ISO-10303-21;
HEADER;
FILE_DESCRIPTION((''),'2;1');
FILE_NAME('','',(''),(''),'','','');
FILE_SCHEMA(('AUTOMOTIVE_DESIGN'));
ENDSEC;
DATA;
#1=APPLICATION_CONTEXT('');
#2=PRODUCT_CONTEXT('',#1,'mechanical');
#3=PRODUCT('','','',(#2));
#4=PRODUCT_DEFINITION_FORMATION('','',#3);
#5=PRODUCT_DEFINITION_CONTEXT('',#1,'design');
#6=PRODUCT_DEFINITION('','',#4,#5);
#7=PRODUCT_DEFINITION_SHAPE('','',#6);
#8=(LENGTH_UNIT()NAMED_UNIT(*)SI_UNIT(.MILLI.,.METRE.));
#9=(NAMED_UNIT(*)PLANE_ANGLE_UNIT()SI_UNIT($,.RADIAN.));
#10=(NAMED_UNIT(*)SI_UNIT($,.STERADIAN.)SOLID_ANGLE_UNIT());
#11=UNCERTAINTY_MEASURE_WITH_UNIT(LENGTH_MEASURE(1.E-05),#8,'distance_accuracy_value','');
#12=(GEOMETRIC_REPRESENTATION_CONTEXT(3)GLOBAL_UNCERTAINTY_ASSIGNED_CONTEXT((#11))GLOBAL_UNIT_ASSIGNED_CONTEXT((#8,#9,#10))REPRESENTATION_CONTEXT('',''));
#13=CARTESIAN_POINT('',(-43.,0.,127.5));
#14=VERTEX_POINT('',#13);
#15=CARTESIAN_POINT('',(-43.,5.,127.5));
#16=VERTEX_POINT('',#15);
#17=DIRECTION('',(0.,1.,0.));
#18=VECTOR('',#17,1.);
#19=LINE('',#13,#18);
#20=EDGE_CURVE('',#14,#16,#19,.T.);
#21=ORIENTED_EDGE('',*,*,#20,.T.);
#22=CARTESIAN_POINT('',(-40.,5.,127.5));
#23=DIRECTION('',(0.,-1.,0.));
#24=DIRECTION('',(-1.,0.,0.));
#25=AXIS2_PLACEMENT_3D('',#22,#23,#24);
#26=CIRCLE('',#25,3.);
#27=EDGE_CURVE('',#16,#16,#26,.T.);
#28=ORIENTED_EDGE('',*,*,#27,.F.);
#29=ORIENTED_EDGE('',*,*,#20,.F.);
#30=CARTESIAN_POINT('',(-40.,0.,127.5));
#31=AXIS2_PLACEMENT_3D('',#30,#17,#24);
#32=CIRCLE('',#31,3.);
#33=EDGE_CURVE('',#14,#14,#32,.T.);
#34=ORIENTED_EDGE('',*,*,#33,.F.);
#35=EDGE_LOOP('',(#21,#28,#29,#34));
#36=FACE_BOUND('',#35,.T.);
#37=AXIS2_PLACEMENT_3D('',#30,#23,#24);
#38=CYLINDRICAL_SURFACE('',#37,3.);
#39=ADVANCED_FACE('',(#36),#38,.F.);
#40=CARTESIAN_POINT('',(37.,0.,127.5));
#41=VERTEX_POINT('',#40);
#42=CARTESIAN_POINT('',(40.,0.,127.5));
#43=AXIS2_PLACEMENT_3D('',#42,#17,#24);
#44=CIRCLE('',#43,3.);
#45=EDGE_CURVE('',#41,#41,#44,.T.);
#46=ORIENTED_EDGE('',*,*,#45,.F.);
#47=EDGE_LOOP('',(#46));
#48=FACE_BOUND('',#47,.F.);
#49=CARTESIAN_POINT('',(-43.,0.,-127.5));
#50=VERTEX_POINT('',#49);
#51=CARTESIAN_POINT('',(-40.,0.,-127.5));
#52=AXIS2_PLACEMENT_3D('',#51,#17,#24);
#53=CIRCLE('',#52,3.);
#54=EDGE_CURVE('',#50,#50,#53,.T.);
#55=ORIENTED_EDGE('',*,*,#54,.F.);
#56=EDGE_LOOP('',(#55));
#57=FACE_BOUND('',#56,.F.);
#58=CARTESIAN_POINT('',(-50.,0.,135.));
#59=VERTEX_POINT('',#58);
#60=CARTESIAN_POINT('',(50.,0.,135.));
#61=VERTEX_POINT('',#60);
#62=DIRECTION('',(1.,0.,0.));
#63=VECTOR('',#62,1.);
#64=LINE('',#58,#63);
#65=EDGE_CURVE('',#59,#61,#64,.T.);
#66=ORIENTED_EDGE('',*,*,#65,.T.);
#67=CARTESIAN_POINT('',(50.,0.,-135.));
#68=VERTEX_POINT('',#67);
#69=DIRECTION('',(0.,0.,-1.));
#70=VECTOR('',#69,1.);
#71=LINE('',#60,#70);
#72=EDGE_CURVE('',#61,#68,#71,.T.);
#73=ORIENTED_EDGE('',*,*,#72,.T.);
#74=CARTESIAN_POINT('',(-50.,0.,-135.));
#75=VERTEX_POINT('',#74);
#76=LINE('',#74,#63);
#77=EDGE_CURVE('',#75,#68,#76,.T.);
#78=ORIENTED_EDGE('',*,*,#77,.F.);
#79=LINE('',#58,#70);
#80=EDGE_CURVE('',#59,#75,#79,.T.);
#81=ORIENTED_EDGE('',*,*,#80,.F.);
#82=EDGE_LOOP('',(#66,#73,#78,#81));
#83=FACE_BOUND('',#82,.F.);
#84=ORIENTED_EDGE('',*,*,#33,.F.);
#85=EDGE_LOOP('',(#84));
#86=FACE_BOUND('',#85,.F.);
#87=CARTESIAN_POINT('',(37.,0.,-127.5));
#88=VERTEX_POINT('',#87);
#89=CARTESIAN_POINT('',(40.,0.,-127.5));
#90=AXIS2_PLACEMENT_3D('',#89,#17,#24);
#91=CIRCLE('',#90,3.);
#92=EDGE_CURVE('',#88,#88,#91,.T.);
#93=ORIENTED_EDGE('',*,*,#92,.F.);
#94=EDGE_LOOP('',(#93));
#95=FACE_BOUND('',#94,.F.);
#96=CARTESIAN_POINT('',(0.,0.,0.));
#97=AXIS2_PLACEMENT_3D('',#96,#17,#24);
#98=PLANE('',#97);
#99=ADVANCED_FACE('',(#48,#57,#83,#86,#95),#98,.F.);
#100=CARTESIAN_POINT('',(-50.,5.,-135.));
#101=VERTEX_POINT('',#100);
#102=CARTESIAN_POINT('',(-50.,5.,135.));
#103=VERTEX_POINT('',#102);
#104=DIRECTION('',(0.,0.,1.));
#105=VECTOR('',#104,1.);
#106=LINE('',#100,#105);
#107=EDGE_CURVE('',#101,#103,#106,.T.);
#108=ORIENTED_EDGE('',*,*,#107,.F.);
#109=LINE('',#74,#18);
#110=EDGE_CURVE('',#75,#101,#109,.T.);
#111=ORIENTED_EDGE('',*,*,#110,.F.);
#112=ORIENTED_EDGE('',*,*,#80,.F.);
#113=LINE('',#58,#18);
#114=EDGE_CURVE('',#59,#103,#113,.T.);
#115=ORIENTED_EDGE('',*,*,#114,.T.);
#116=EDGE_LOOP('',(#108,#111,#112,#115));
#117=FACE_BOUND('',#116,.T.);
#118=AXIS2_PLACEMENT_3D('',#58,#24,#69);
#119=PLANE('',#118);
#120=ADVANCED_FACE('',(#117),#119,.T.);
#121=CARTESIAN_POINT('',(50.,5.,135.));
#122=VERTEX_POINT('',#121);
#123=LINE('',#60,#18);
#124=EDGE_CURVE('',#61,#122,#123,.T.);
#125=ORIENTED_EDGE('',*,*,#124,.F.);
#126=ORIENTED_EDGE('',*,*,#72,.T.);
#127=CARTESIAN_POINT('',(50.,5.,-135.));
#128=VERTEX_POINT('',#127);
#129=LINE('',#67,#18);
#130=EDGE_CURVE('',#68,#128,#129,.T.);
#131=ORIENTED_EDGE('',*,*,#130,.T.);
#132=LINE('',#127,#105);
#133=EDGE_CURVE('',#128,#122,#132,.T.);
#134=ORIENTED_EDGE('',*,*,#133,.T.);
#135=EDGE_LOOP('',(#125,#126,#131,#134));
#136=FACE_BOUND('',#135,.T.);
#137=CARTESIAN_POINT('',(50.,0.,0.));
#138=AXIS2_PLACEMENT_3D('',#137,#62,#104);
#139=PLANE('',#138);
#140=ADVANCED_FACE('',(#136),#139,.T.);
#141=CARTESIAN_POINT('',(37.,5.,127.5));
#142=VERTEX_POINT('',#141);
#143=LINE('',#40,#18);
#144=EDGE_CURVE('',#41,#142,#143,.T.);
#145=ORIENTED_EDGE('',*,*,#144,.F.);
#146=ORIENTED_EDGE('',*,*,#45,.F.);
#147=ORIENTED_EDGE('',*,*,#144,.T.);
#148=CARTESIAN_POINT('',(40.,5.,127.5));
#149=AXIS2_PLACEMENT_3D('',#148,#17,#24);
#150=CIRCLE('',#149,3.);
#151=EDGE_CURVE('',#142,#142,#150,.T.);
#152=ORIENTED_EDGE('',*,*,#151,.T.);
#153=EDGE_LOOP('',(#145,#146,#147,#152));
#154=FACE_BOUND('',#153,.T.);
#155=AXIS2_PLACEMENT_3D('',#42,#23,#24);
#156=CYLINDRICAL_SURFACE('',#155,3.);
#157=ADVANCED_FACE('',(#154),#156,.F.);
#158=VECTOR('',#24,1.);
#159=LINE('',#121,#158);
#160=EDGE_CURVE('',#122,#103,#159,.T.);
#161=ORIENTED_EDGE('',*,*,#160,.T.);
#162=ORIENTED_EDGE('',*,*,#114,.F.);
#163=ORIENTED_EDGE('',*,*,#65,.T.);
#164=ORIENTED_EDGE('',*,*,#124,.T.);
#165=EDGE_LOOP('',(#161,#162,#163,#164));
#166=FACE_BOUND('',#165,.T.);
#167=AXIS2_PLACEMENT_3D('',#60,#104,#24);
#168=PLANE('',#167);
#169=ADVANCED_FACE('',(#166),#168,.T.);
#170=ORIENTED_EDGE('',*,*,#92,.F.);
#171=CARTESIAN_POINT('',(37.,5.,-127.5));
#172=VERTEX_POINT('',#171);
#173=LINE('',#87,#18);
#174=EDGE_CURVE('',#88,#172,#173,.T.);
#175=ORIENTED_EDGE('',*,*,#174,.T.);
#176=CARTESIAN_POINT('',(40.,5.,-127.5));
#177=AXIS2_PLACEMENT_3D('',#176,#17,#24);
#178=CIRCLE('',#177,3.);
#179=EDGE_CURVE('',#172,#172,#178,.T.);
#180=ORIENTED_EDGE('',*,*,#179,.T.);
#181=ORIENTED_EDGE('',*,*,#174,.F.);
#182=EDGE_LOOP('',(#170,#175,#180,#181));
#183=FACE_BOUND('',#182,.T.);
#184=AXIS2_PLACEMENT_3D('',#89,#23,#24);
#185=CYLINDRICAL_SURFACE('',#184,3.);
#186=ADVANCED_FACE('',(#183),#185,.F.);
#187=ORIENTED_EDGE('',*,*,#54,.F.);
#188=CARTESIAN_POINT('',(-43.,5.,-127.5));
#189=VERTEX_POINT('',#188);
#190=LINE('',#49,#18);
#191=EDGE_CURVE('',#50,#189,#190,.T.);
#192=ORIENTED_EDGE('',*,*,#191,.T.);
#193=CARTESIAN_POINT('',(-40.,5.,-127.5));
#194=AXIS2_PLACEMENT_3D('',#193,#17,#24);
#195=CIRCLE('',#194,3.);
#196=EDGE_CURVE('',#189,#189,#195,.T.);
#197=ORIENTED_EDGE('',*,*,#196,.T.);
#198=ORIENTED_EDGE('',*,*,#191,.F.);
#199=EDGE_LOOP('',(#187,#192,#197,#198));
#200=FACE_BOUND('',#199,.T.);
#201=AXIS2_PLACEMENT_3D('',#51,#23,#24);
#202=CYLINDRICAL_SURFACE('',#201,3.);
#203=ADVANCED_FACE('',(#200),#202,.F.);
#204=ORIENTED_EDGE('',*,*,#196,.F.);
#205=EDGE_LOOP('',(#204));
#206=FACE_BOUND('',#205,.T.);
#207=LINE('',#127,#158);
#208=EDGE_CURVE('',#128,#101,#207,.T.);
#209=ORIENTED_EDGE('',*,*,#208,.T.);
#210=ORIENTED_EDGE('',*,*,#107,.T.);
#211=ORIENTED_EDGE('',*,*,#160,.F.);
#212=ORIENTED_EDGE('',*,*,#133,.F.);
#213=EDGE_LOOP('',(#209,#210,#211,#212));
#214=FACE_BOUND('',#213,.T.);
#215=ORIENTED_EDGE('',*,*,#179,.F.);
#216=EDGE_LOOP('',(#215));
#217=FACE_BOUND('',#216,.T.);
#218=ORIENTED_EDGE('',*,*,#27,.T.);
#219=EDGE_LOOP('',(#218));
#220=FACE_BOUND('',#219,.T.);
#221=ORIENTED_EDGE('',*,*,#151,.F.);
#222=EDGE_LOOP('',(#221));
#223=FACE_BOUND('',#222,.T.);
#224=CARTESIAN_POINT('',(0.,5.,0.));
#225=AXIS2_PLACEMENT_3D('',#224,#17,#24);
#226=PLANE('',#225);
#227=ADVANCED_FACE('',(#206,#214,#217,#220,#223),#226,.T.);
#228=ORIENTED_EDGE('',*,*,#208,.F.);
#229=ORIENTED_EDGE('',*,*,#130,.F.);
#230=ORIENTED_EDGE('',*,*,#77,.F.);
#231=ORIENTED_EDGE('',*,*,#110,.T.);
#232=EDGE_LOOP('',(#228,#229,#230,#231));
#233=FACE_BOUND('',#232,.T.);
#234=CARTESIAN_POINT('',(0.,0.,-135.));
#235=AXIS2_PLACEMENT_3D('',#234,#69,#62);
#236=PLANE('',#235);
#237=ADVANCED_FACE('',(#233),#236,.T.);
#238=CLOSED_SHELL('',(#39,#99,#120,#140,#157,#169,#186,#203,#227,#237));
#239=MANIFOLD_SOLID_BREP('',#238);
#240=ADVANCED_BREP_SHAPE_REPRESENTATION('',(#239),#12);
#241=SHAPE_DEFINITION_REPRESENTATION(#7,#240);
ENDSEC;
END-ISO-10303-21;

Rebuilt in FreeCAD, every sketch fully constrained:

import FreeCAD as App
import Part
import Sketcher
from FreeCAD import Vector
Q = App.Units.Quantity

doc = App.newDocument("Part")
body = doc.addObject("PartDesign::Body", "Body")

# Sketch on XZ plane
sketch1 = doc.addObject("Sketcher::SketchObject", "Sketch")
body.addObject(sketch1)
sketch1.AttachmentSupport = (doc.XZ_Plane, [""])
sketch1.MapMode = "FlatFace"
sketch1.addGeometry([
    Part.LineSegment(Vector(50, 135, 0), Vector(50, -135, 0)),  # 0
    Part.LineSegment(Vector(50, -135, 0), Vector(-50, -135, 0)),  # 1
    Part.LineSegment(Vector(-50, -135, 0), Vector(-50, 135, 0)),  # 2
    Part.LineSegment(Vector(-50, 135, 0), Vector(50, 135, 0)),  # 3
    Part.Circle(Vector(40, 127.5, 0), Vector(0, 0, 1), 3),  # 4
    Part.Circle(Vector(40, -127.5, 0), Vector(0, 0, 1), 3),  # 5
    Part.Circle(Vector(-40, 127.5, 0), Vector(0, 0, 1), 3),  # 6
    Part.Circle(Vector(-40, -127.5, 0), Vector(0, 0, 1), 3),  # 7
], False)
sketch1.addConstraint([
    Sketcher.Constraint("Coincident", 0, 2, 1, 1),
    Sketcher.Constraint("Coincident", 1, 2, 2, 1),
    Sketcher.Constraint("Coincident", 2, 2, 3, 1),
    Sketcher.Constraint("Coincident", 3, 2, 0, 1),
    Sketcher.Constraint("Vertical", 0),
    Sketcher.Constraint("Horizontal", 1),
    Sketcher.Constraint("Vertical", 2),
    Sketcher.Constraint("Horizontal", 3),
    Sketcher.Constraint("Equal", 4, 5),
    Sketcher.Constraint("Equal", 5, 6),
    Sketcher.Constraint("Equal", 6, 7),
    Sketcher.Constraint("Symmetric", 5, 3, 6, 3, -1, 1),
    Sketcher.Constraint("Symmetric", 4, 3, 7, 3, -1, 1),
    Sketcher.Constraint("Symmetric", 0, 2, 2, 2, -1, 1),
    Sketcher.Constraint("Symmetric", 4, 3, 6, 3, -2),
    Sketcher.Constraint("Diameter", 4, Q("6 mm")),
    Sketcher.Constraint("DistanceX", 1, 2, 1, 1, Q("100 mm")),
    Sketcher.Constraint("DistanceY", 0, 2, 0, 1, Q("270 mm")),
    Sketcher.Constraint("DistanceX", 6, 3, 4, 3, Q("80 mm")),
    Sketcher.Constraint("DistanceY", 0, 2, 5, 3, Q("7.5 mm")),
])
pad1 = doc.addObject("PartDesign::Pad", "Pad")
body.addObject(pad1)
pad1.Profile = sketch1
pad1.Length = 5
pad1.Reversed = True

doc.recompute()
